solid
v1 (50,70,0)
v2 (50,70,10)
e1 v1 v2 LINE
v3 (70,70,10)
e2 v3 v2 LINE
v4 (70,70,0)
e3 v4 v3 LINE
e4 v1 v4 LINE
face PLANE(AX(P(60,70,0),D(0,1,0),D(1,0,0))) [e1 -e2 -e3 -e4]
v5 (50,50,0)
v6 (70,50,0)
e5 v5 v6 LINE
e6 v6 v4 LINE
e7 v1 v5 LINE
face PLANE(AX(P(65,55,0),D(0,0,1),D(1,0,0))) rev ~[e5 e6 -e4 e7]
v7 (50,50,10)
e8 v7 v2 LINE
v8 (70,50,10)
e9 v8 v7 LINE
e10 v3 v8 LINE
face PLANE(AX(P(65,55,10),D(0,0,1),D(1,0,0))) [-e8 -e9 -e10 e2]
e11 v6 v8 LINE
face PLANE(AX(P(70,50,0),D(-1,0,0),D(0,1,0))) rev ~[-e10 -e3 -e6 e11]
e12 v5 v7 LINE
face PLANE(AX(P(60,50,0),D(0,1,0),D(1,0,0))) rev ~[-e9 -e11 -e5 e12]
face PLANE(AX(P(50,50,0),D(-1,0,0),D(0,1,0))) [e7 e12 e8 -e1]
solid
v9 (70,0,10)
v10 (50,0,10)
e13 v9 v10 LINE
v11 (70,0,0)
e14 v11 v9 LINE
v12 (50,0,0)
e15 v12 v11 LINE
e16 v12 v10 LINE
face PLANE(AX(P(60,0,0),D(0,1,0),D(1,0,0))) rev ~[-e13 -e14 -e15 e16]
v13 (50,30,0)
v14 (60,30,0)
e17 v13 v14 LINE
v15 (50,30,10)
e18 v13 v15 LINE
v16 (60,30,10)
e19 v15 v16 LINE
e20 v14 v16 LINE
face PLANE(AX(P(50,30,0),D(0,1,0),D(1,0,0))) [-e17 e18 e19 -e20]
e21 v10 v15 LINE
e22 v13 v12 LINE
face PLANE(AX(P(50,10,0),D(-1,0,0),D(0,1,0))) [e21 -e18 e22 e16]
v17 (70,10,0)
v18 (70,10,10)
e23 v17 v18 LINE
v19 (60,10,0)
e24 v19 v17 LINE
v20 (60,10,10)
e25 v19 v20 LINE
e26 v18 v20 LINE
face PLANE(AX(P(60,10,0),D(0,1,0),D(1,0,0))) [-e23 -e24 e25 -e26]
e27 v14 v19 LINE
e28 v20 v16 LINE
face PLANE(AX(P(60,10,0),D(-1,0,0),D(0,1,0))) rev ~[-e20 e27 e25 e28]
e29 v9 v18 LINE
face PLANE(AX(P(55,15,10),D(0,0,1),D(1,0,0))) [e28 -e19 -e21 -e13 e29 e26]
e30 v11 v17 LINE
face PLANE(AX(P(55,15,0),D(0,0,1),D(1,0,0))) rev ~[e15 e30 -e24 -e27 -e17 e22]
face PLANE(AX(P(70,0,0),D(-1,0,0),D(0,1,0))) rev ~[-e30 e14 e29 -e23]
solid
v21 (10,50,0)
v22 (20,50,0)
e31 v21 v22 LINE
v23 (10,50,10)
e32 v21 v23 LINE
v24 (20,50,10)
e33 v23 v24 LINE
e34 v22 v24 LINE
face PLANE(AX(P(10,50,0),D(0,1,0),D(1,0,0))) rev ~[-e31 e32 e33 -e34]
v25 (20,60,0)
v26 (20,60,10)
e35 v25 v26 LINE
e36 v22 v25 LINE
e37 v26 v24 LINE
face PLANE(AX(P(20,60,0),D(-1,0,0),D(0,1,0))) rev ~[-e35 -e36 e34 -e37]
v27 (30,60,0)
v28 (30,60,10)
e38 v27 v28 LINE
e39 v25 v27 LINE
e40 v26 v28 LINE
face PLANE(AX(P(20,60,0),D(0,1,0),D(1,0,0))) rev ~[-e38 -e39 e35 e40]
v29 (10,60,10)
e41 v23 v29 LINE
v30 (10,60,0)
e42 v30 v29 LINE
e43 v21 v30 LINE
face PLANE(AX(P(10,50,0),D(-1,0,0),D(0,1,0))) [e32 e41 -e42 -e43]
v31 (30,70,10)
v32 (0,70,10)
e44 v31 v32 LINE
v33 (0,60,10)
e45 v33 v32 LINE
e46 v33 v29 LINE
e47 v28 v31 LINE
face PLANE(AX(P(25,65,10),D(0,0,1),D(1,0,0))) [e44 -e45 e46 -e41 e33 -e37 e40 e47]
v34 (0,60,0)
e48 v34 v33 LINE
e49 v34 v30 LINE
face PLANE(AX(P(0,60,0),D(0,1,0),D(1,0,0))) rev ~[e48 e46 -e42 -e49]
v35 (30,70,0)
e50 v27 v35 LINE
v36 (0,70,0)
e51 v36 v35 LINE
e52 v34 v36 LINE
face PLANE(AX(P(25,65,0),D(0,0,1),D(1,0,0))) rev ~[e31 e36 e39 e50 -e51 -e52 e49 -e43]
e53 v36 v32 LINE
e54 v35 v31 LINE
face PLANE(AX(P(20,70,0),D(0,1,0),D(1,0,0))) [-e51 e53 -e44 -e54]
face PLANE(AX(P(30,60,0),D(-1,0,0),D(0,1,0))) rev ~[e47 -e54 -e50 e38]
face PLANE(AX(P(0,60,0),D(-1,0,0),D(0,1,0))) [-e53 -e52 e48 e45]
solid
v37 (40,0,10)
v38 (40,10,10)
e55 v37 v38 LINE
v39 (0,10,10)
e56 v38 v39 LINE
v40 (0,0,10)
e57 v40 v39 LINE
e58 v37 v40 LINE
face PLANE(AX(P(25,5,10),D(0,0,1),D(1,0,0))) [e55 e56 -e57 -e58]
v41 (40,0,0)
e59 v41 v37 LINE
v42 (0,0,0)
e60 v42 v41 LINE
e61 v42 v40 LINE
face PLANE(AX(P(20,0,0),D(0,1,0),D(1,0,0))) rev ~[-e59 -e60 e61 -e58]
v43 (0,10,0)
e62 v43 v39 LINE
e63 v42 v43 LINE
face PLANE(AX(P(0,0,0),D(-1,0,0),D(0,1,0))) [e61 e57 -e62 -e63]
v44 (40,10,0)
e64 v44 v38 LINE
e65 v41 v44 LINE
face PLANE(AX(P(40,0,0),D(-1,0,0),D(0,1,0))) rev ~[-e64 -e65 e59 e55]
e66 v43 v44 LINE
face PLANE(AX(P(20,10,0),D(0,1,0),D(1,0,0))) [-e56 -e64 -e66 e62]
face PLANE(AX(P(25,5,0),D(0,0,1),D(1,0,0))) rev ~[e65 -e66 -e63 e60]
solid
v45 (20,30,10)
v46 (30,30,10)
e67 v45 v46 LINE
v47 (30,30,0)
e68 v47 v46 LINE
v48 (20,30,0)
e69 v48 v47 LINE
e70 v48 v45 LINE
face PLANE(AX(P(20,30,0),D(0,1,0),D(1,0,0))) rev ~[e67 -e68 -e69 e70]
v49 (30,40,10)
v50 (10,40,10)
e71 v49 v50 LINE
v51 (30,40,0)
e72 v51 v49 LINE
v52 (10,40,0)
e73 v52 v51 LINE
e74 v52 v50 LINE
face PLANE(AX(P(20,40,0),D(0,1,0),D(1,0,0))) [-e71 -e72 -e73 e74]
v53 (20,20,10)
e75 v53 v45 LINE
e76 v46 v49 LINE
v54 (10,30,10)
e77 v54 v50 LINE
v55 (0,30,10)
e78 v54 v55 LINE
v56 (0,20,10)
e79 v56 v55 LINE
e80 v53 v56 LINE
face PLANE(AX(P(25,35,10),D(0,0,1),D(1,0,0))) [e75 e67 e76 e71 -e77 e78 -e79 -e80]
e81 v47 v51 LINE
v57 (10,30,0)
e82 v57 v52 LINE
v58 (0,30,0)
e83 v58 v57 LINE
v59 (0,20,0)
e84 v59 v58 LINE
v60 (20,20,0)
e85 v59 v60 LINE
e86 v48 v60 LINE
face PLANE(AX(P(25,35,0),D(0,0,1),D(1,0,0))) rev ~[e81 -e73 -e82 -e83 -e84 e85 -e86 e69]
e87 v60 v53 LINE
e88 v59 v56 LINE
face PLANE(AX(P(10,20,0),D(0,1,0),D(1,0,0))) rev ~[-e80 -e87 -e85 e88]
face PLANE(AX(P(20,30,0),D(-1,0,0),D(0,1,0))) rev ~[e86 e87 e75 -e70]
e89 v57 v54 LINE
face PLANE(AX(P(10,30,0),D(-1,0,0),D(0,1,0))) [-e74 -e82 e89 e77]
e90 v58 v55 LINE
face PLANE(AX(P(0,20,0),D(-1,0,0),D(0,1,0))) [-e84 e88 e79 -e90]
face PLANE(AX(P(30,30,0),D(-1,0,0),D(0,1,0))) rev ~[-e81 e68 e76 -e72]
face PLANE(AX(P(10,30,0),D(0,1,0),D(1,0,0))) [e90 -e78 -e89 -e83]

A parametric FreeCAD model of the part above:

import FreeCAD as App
import Part
import Sketcher

V = App.Vector
Q = App.Units.Quantity

doc = App.newDocument("Part")
params = doc.addObject("Spreadsheet::Sheet", "Params")
for row, (alias, value) in enumerate([
    ("sketch1_width", "10 mm"),
    ("pad1_length", "10 mm"),
    ("sketch2_width", "10 mm"),
    ("pad2_length", "10 mm"),
    ("sketch3_width", "10 mm"),
    ("pad3_length", "10 mm"),
    ("sketch4_width", "10 mm"),
    ("pad4_length", "10 mm"),
    ("sketch5_width", "10 mm"),
    ("pad5_length", "10 mm"),
    ("sketch6_width", "10 mm"),
    ("pad6_length", "10 mm"),
    ("sketch7_width", "10 mm"),
    ("pad7_length", "10 mm"),
    ("sketch8_width", "10 mm"),
    ("pad8_length", "10 mm"),
    ("sketch9_width", "10 mm"),
    ("pad9_length", "10 mm"),
    ("sketch10_width", "10 mm"),
    ("pad10_length", "10 mm"),
    ("sketch11_width", "10 mm"),
    ("pad11_length", "10 mm"),
    ("sketch12_width", "10 mm"),
    ("pad12_length", "10 mm"),
    ("sketch13_width", "10 mm"),
    ("pad13_length", "10 mm"),
    ("sketch14_width", "10 mm"),
    ("pad14_length", "10 mm"),
    ("sketch15_width", "10 mm"),
    ("pad15_length", "10 mm"),
    ("sketch16_width", "10 mm"),
    ("pad16_length", "10 mm"),
    ("sketch17_width", "10 mm"),
    ("pad17_length", "10 mm"),
    ("sketch18_width", "10 mm"),
    ("pad18_length", "10 mm"),
    ("sketch19_width", "10 mm"),
    ("pad19_length", "10 mm"),
    ("sketch20_width", "10 mm"),
    ("pad20_length", "10 mm"),
], start=1):
    params.set(f"A{row}", alias)
    params.set(f"B{row}", "=" + value)
    params.setAlias(f"B{row}", alias)

body = doc.addObject("PartDesign::Body", "Body")

sketch1 = body.newObject("Sketcher::SketchObject", "Sketch")
sketch1.AttachmentSupport = (doc.getObject("XY_Plane"), [""])
sketch1.MapMode = "FlatFace"
sketch1.addGeometry([
    Part.LineSegment(V(0, 10, 0), V(0, 0, 0)),
    Part.LineSegment(V(0, 0, 0), V(10, 0, 0)),
    Part.LineSegment(V(10, 0, 0), V(10, 10, 0)),
    Part.LineSegment(V(10, 10, 0), V(0, 10, 0)),
], False)
sketch1.addConstraint([
    Sketcher.Constraint("Coincident", 0, 2, 1, 1),
    Sketcher.Constraint("Coincident", 1, 2, 2, 1),
    Sketcher.Constraint("Coincident", 2, 2, 3, 1),
    Sketcher.Constraint("Coincident", 3, 2, 0, 1),
    Sketcher.Constraint("Vertical", 0),
    Sketcher.Constraint("Horizontal", 1),
    Sketcher.Constraint("Vertical", 2),
    Sketcher.Constraint("Horizontal", 3),
    Sketcher.Constraint("Coincident", 0, 2, -1, 1),
    Sketcher.Constraint("Equal", 3, 0),
    Sketcher.Constraint("DistanceX", 1, 1, 1, 2, Q("10 mm")),
])
sketch1.setExpression("Constraints[10]", "Params.sketch1_width")
pad1 = body.newObject("PartDesign::Pad", "Pad")
pad1.Profile = sketch1
pad1.setExpression("Length", "Params.pad1_length")
body2 = doc.addObject("PartDesign::Body", "Body001")

sketch2 = body2.newObject("Sketcher::SketchObject", "Sketch001")
sketch2.AttachmentSupport = (doc.getObject("XY_Plane001"), [""])
sketch2.MapMode = "FlatFace"
sketch2.addGeometry([
    Part.LineSegment(V(10, 10, 0), V(10, 0, 0)),
    Part.LineSegment(V(10, 0, 0), V(20, 0, 0)),
    Part.LineSegment(V(20, 0, 0), V(20, 10, 0)),
    Part.LineSegment(V(20, 10, 0), V(10, 10, 0)),
], False)
sketch2.addConstraint([
    Sketcher.Constraint("Coincident", 0, 2, 1, 1),
    Sketcher.Constraint("Coincident", 1, 2, 2, 1),
    Sketcher.Constraint("Coincident", 2, 2, 3, 1),
    Sketcher.Constraint("Coincident", 3, 2, 0, 1),
    Sketcher.Constraint("Vertical", 0),
    Sketcher.Constraint("Horizontal", 1),
    Sketcher.Constraint("Vertical", 2),
    Sketcher.Constraint("Horizontal", 3),
    Sketcher.Constraint("PointOnObject", 0, 2, -1),
    Sketcher.Constraint("Equal", 3, 0),
    Sketcher.Constraint("DistanceX", 1, 1, 1, 2, Q("10 mm")),
    Sketcher.Constraint("DistanceX", -1, 1, 0, 2, Q("10 mm")),
])
sketch2.setExpression("Constraints[10]", "Params.sketch2_width")
pad2 = body2.newObject("PartDesign::Pad", "Pad001")
pad2.Profile = sketch2
pad2.setExpression("Length", "Params.pad2_length")
body3 = doc.addObject("PartDesign::Body", "Body002")

sketch3 = body3.newObject("Sketcher::SketchObject", "Sketch002")
sketch3.AttachmentSupport = (doc.getObject("XY_Plane002"), [""])
sketch3.MapMode = "FlatFace"
sketch3.addGeometry([
    Part.LineSegment(V(20, 10, 0), V(20, 0, 0)),
    Part.LineSegment(V(20, 0, 0), V(30, 0, 0)),
    Part.LineSegment(V(30, 0, 0), V(30, 10, 0)),
    Part.LineSegment(V(30, 10, 0), V(20, 10, 0)),
], False)
sketch3.addConstraint([
    Sketcher.Constraint("Coincident", 0, 2, 1, 1),
    Sketcher.Constraint("Coincident", 1, 2, 2, 1),
    Sketcher.Constraint("Coincident", 2, 2, 3, 1),
    Sketcher.Constraint("Coincident", 3, 2, 0, 1),
    Sketcher.Constraint("Vertical", 0),
    Sketcher.Constraint("Horizontal", 1),
    Sketcher.Constraint("Vertical", 2),
    Sketcher.Constraint("Horizontal", 3),
    Sketcher.Constraint("PointOnObject", 0, 2, -1),
    Sketcher.Constraint("Equal", 3, 0),
    Sketcher.Constraint("DistanceX", 1, 1, 1, 2, Q("10 mm")),
    Sketcher.Constraint("DistanceX", -1, 1, 0, 2, Q("20 mm")),
])
sketch3.setExpression("Constraints[10]", "Params.sketch3_width")
pad3 = body3.newObject("PartDesign::Pad", "Pad002")
pad3.Profile = sketch3
pad3.setExpression("Length", "Params.pad3_length")
body4 = doc.addObject("PartDesign::Body", "Body003")
body4.AllowCompound = True

sketch4 = body4.newObject("Sketcher::SketchObject", "Sketch003")
sketch4.AttachmentSupport = (doc.getObject("XY_Plane003"), [""])
sketch4.MapMode = "FlatFace"
sketch4.addGeometry([
    Part.LineSegment(V(30, 10, 0), V(30, 0, 0)),
    Part.LineSegment(V(30, 0, 0), V(40, 0, 0)),
    Part.LineSegment(V(40, 0, 0), V(40, 10, 0)),
    Part.LineSegment(V(40, 10, 0), V(30, 10, 0)),
], False)
sketch4.addConstraint([
    Sketcher.Constraint("Coincident", 0, 2, 1, 1),
    Sketcher.Constraint("Coincident", 1, 2, 2, 1),
    Sketcher.Constraint("Coincident", 2, 2, 3, 1),
    Sketcher.Constraint("Coincident", 3, 2, 0, 1),
    Sketcher.Constraint("Vertical", 0),
    Sketcher.Constraint("Horizontal", 1),
    Sketcher.Constraint("Vertical", 2),
    Sketcher.Constraint("Horizontal", 3),
    Sketcher.Constraint("PointOnObject", 0, 2, -1),
    Sketcher.Constraint("Equal", 3, 0),
    Sketcher.Constraint("DistanceX", 1, 1, 1, 2, Q("10 mm")),
    Sketcher.Constraint("DistanceX", -1, 1, 0, 2, Q("30 mm")),
])
sketch4.setExpression("Constraints[10]", "Params.sketch4_width")
pad4 = body4.newObject("PartDesign::Pad", "Pad003")
pad4.Profile = sketch4
pad4.setExpression("Length", "Params.pad4_length")
doc.recompute()

boolean = body4.newObject("PartDesign::Boolean", "Boolean")
boolean.Type = "Fuse"
boolean.addObjects([body])
doc.recompute()

boolean2 = body4.newObject("PartDesign::Boolean", "Boolean001")
boolean2.Type = "Fuse"
boolean2.addObjects([body2])
doc.recompute()

boolean3 = body4.newObject("PartDesign::Boolean", "Boolean002")
boolean3.Type = "Fuse"
boolean3.addObjects([body3])
body5 = doc.addObject("PartDesign::Body", "Body004")

sketch5 = body5.newObject("Sketcher::SketchObject", "Sketch004")
sketch5.AttachmentSupport = (doc.getObject("XY_Plane004"), [""])
sketch5.MapMode = "FlatFace"
sketch5.addGeometry([
    Part.LineSegment(V(50, 10, 0), V(50, 0, 0)),
    Part.LineSegment(V(50, 0, 0), V(60, 0, 0)),
    Part.LineSegment(V(60, 0, 0), V(60, 10, 0)),
    Part.LineSegment(V(60, 10, 0), V(50, 10, 0)),
], False)
sketch5.addConstraint([
    Sketcher.Constraint("Coincident", 0, 2, 1, 1),
    Sketcher.Constraint("Coincident", 1, 2, 2, 1),
    Sketcher.Constraint("Coincident", 2, 2, 3, 1),
    Sketcher.Constraint("Coincident", 3, 2, 0, 1),
    Sketcher.Constraint("Vertical", 0),
    Sketcher.Constraint("Horizontal", 1),
    Sketcher.Constraint("Vertical", 2),
    Sketcher.Constraint("Horizontal", 3),
    Sketcher.Constraint("PointOnObject", 0, 2, -1),
    Sketcher.Constraint("Equal", 3, 0),
    Sketcher.Constraint("DistanceX", 1, 1, 1, 2, Q("10 mm")),
    Sketcher.Constraint("DistanceX", -1, 1, 0, 2, Q("50 mm")),
])
sketch5.setExpression("Constraints[10]", "Params.sketch5_width")
pad5 = body5.newObject("PartDesign::Pad", "Pad004")
pad5.Profile = sketch5
pad5.setExpression("Length", "Params.pad5_length")
body6 = doc.addObject("PartDesign::Body", "Body005")

sketch6 = body6.newObject("Sketcher::SketchObject", "Sketch005")
sketch6.AttachmentSupport = (doc.getObject("XY_Plane005"), [""])
sketch6.MapMode = "FlatFace"
sketch6.addGeometry([
    Part.LineSegment(V(60, 10, 0), V(60, 0, 0)),
    Part.LineSegment(V(60, 0, 0), V(70, 0, 0)),
    Part.LineSegment(V(70, 0, 0), V(70, 10, 0)),
    Part.LineSegment(V(70, 10, 0), V(60, 10, 0)),
], False)
sketch6.addConstraint([
    Sketcher.Constraint("Coincident", 0, 2, 1, 1),
    Sketcher.Constraint("Coincident", 1, 2, 2, 1),
    Sketcher.Constraint("Coincident", 2, 2, 3, 1),
    Sketcher.Constraint("Coincident", 3, 2, 0, 1),
    Sketcher.Constraint("Vertical", 0),
    Sketcher.Constraint("Horizontal", 1),
    Sketcher.Constraint("Vertical", 2),
    Sketcher.Constraint("Horizontal", 3),
    Sketcher.Constraint("PointOnObject", 0, 2, -1),
    Sketcher.Constraint("Equal", 3, 0),
    Sketcher.Constraint("DistanceX", 1, 1, 1, 2, Q("10 mm")),
    Sketcher.Constraint("DistanceX", -1, 1, 0, 2, Q("60 mm")),
])
sketch6.setExpression("Constraints[10]", "Params.sketch6_width")
pad6 = body6.newObject("PartDesign::Pad", "Pad005")
pad6.Profile = sketch6
pad6.setExpression("Length", "Params.pad6_length")
body7 = doc.addObject("PartDesign::Body", "Body006")

sketch7 = body7.newObject("Sketcher::SketchObject", "Sketch006")
sketch7.AttachmentSupport = (doc.getObject("XY_Plane006"), [""])
sketch7.MapMode = "FlatFace"
sketch7.addGeometry([
    Part.LineSegment(V(50, 20, 0), V(50, 10, 0)),
    Part.LineSegment(V(50, 10, 0), V(60, 10, 0)),
    Part.LineSegment(V(60, 10, 0), V(60, 20, 0)),
    Part.LineSegment(V(60, 20, 0), V(50, 20, 0)),
], False)
sketch7.addConstraint([
    Sketcher.Constraint("Coincident", 0, 2, 1, 1),
    Sketcher.Constraint("Coincident", 1, 2, 2, 1),
    Sketcher.Constraint("Coincident", 2, 2, 3, 1),
    Sketcher.Constraint("Coincident", 3, 2, 0, 1),
    Sketcher.Constraint("Vertical", 0),
    Sketcher.Constraint("Horizontal", 1),
    Sketcher.Constraint("Vertical", 2),
    Sketcher.Constraint("Horizontal", 3),
    Sketcher.Constraint("Equal", 3, 0),
    Sketcher.Constraint("DistanceX", 1, 1, 1, 2, Q("10 mm")),
    Sketcher.Constraint("DistanceX", -1, 1, 0, 2, Q("50 mm")),
    Sketcher.Constraint("DistanceY", -1, 1, 0, 2, Q("10 mm")),
])
sketch7.setExpression("Constraints[9]", "Params.sketch7_width")
pad7 = body7.newObject("PartDesign::Pad", "Pad006")
pad7.Profile = sketch7
pad7.setExpression("Length", "Params.pad7_length")
body8 = doc.addObject("PartDesign::Body", "Body007")
body8.AllowCompound = True

sketch8 = body8.newObject("Sketcher::SketchObject", "Sketch007")
sketch8.AttachmentSupport = (doc.getObject("XY_Plane007"), [""])
sketch8.MapMode = "FlatFace"
sketch8.addGeometry([
    Part.LineSegment(V(50, 30, 0), V(50, 20, 0)),
    Part.LineSegment(V(50, 20, 0), V(60, 20, 0)),
    Part.LineSegment(V(60, 20, 0), V(60, 30, 0)),
    Part.LineSegment(V(60, 30, 0), V(50, 30, 0)),
], False)
sketch8.addConstraint([
    Sketcher.Constraint("Coincident", 0, 2, 1, 1),
    Sketcher.Constraint("Coincident", 1, 2, 2, 1),
    Sketcher.Constraint("Coincident", 2, 2, 3, 1),
    Sketcher.Constraint("Coincident", 3, 2, 0, 1),
    Sketcher.Constraint("Vertical", 0),
    Sketcher.Constraint("Horizontal", 1),
    Sketcher.Constraint("Vertical", 2),
    Sketcher.Constraint("Horizontal", 3),
    Sketcher.Constraint("Equal", 3, 0),
    Sketcher.Constraint("DistanceX", 1, 1, 1, 2, Q("10 mm")),
    Sketcher.Constraint("DistanceX", -1, 1, 0, 2, Q("50 mm")),
    Sketcher.Constraint("DistanceY", -1, 1, 0, 2, Q("20 mm")),
])
sketch8.setExpression("Constraints[9]", "Params.sketch8_width")
pad8 = body8.newObject("PartDesign::Pad", "Pad007")
pad8.Profile = sketch8
pad8.setExpression("Length", "Params.pad8_length")
doc.recompute()

boolean4 = body8.newObject("PartDesign::Boolean", "Boolean003")
boolean4.Type = "Fuse"
boolean4.addObjects([body5])
doc.recompute()

boolean5 = body8.newObject("PartDesign::Boolean", "Boolean004")
boolean5.Type = "Fuse"
boolean5.addObjects([body6])
doc.recompute()

boolean6 = body8.newObject("PartDesign::Boolean", "Boolean005")
boolean6.Type = "Fuse"
boolean6.addObjects([body7])
body9 = doc.addObject("PartDesign::Body", "Body008")

sketch9 = body9.newObject("Sketcher::SketchObject", "Sketch008")
sketch9.AttachmentSupport = (doc.getObject("XY_Plane008"), [""])
sketch9.MapMode = "FlatFace"
sketch9.addGeometry([
    Part.LineSegment(V(10, 30, 0), V(10, 20, 0)),
    Part.LineSegment(V(10, 20, 0), V(20, 20, 0)),
    Part.LineSegment(V(20, 20, 0), V(20, 30, 0)),
    Part.LineSegment(V(20, 30, 0), V(10, 30, 0)),
], False)
sketch9.addConstraint([
    Sketcher.Constraint("Coincident", 0, 2, 1, 1),
    Sketcher.Constraint("Coincident", 1, 2, 2, 1),
    Sketcher.Constraint("Coincident", 2, 2, 3, 1),
    Sketcher.Constraint("Coincident", 3, 2, 0, 1),
    Sketcher.Constraint("Vertical", 0),
    Sketcher.Constraint("Horizontal", 1),
    Sketcher.Constraint("Vertical", 2),
    Sketcher.Constraint("Horizontal", 3),
    Sketcher.Constraint("Equal", 3, 0),
    Sketcher.Constraint("DistanceX", 1, 1, 1, 2, Q("10 mm")),
    Sketcher.Constraint("DistanceX", -1, 1, 0, 2, Q("10 mm")),
    Sketcher.Constraint("DistanceY", -1, 1, 0, 2, Q("20 mm")),
])
sketch9.setExpression("Constraints[9]", "Params.sketch9_width")
pad9 = body9.newObject("PartDesign::Pad", "Pad008")
pad9.Profile = sketch9
pad9.setExpression("Length", "Params.pad9_length")
body10 = doc.addObject("PartDesign::Body", "Body009")

sketch10 = body10.newObject("Sketcher::SketchObject", "Sketch009")
sketch10.AttachmentSupport = (doc.getObject("XY_Plane009"), [""])
sketch10.MapMode = "FlatFace"
sketch10.addGeometry([
    Part.LineSegment(V(10, 40, 0), V(10, 30, 0)),
    Part.LineSegment(V(10, 30, 0), V(20, 30, 0)),
    Part.LineSegment(V(20, 30, 0), V(20, 40, 0)),
    Part.LineSegment(V(20, 40, 0), V(10, 40, 0)),
], False)
sketch10.addConstraint([
    Sketcher.Constraint("Coincident", 0, 2, 1, 1),
    Sketcher.Constraint("Coincident", 1, 2, 2, 1),
    Sketcher.Constraint("Coincident", 2, 2, 3, 1),
    Sketcher.Constraint("Coincident", 3, 2, 0, 1),
    Sketcher.Constraint("Vertical", 0),
    Sketcher.Constraint("Horizontal", 1),
    Sketcher.Constraint("Vertical", 2),
    Sketcher.Constraint("Horizontal", 3),
    Sketcher.Constraint("Equal", 3, 0),
    Sketcher.Constraint("DistanceX", 1, 1, 1, 2, Q("10 mm")),
    Sketcher.Constraint("DistanceX", -1, 1, 0, 2, Q("10 mm")),
    Sketcher.Constraint("DistanceY", -1, 1, 0, 2, Q("30 mm")),
])
sketch10.setExpression("Constraints[9]", "Params.sketch10_width")
pad10 = body10.newObject("PartDesign::Pad", "Pad009")
pad10.Profile = sketch10
pad10.setExpression("Length", "Params.pad10_length")
body11 = doc.addObject("PartDesign::Body", "Body010")

sketch11 = body11.newObject("Sketcher::SketchObject", "Sketch010")
sketch11.AttachmentSupport = (doc.getObject("XY_Plane010"), [""])
sketch11.MapMode = "FlatFace"
sketch11.addGeometry([
    Part.LineSegment(V(20, 40, 0), V(20, 30, 0)),
    Part.LineSegment(V(20, 30, 0), V(30, 30, 0)),
    Part.LineSegment(V(30, 30, 0), V(30, 40, 0)),
    Part.LineSegment(V(30, 40, 0), V(20, 40, 0)),
], False)
sketch11.addConstraint([
    Sketcher.Constraint("Coincident", 0, 2, 1, 1),
    Sketcher.Constraint("Coincident", 1, 2, 2, 1),
    Sketcher.Constraint("Coincident", 2, 2, 3, 1),
    Sketcher.Constraint("Coincident", 3, 2, 0, 1),
    Sketcher.Constraint("Vertical", 0),
    Sketcher.Constraint("Horizontal", 1),
    Sketcher.Constraint("Vertical", 2),
    Sketcher.Constraint("Horizontal", 3),
    Sketcher.Constraint("Equal", 3, 0),
    Sketcher.Constraint("DistanceX", 1, 1, 1, 2, Q("10 mm")),
    Sketcher.Constraint("DistanceX", -1, 1, 0, 2, Q("20 mm")),
    Sketcher.Constraint("DistanceY", -1, 1, 0, 2, Q("30 mm")),
])
sketch11.setExpression("Constraints[9]", "Params.sketch11_width")
pad11 = body11.newObject("PartDesign::Pad", "Pad010")
pad11.Profile = sketch11
pad11.setExpression("Length", "Params.pad11_length")
body12 = doc.addObject("PartDesign::Body", "Body011")

sketch12 = body12.newObject("Sketcher::SketchObject", "Sketch011")
sketch12.AttachmentSupport = (doc.getObject("XY_Plane011"), [""])
sketch12.MapMode = "FlatFace"
sketch12.addGeometry([
    Part.LineSegment(V(0, 30, 0), V(0, 20, 0)),
    Part.LineSegment(V(0, 20, 0), V(10, 20, 0)),
    Part.LineSegment(V(10, 20, 0), V(10, 30, 0)),
    Part.LineSegment(V(10, 30, 0), V(0, 30, 0)),
], False)
sketch12.addConstraint([
    Sketcher.Constraint("Coincident", 0, 2, 1, 1),
    Sketcher.Constraint("Coincident", 1, 2, 2, 1),
    Sketcher.Constraint("Coincident", 2, 2, 3, 1),
    Sketcher.Constraint("Coincident", 3, 2, 0, 1),
    Sketcher.Constraint("Vertical", 0),
    Sketcher.Constraint("Horizontal", 1),
    Sketcher.Constraint("Vertical", 2),
    Sketcher.Constraint("Horizontal", 3),
    Sketcher.Constraint("PointOnObject", 0, 2, -2),
    Sketcher.Constraint("Equal", 3, 0),
    Sketcher.Constraint("DistanceX", 1, 1, 1, 2, Q("10 mm")),
    Sketcher.Constraint("DistanceY", -1, 1, 0, 2, Q("20 mm")),
])
sketch12.setExpression("Constraints[10]", "Params.sketch12_width")
pad12 = body12.newObject("PartDesign::Pad", "Pad011")
pad12.Profile = sketch12
pad12.setExpression("Length", "Params.pad12_length")
doc.recompute()

boolean7 = body12.newObject("PartDesign::Boolean", "Boolean006")
boolean7.Type = "Fuse"
boolean7.addObjects([body9])
doc.recompute()

boolean8 = body12.newObject("PartDesign::Boolean", "Boolean007")
boolean8.Type = "Fuse"
boolean8.addObjects([body10])
doc.recompute()

boolean9 = body12.newObject("PartDesign::Boolean", "Boolean008")
boolean9.Type = "Fuse"
boolean9.addObjects([body11])
body13 = doc.addObject("PartDesign::Body", "Body012")

sketch13 = body13.newObject("Sketcher::SketchObject", "Sketch012")
sketch13.AttachmentSupport = (doc.getObject("XY_Plane012"), [""])
sketch13.MapMode = "FlatFace"
sketch13.addGeometry([
    Part.LineSegment(V(0, 70, 0), V(0, 60, 0)),
    Part.LineSegment(V(0, 60, 0), V(10, 60, 0)),
    Part.LineSegment(V(10, 60, 0), V(10, 70, 0)),
    Part.LineSegment(V(10, 70, 0), V(0, 70, 0)),
], False)
sketch13.addConstraint([
    Sketcher.Constraint("Coincident", 0, 2, 1, 1),
    Sketcher.Constraint("Coincident", 1, 2, 2, 1),
    Sketcher.Constraint("Coincident", 2, 2, 3, 1),
    Sketcher.Constraint("Coincident", 3, 2, 0, 1),
    Sketcher.Constraint("Vertical", 0),
    Sketcher.Constraint("Horizontal", 1),
    Sketcher.Constraint("Vertical", 2),
    Sketcher.Constraint("Horizontal", 3),
    Sketcher.Constraint("PointOnObject", 0, 2, -2),
    Sketcher.Constraint("Equal", 3, 0),
    Sketcher.Constraint("DistanceX", 1, 1, 1, 2, Q("10 mm")),
    Sketcher.Constraint("DistanceY", -1, 1, 0, 2, Q("60 mm")),
])
sketch13.setExpression("Constraints[10]", "Params.sketch13_width")
pad13 = body13.newObject("PartDesign::Pad", "Pad012")
pad13.Profile = sketch13
pad13.setExpression("Length", "Params.pad13_length")
body14 = doc.addObject("PartDesign::Body", "Body013")

sketch14 = body14.newObject("Sketcher::SketchObject", "Sketch013")
sketch14.AttachmentSupport = (doc.getObject("XY_Plane013"), [""])
sketch14.MapMode = "FlatFace"
sketch14.addGeometry([
    Part.LineSegment(V(10, 70, 0), V(10, 60, 0)),
    Part.LineSegment(V(10, 60, 0), V(20, 60, 0)),
    Part.LineSegment(V(20, 60, 0), V(20, 70, 0)),
    Part.LineSegment(V(20, 70, 0), V(10, 70, 0)),
], False)
sketch14.addConstraint([
    Sketcher.Constraint("Coincident", 0, 2, 1, 1),
    Sketcher.Constraint("Coincident", 1, 2, 2, 1),
    Sketcher.Constraint("Coincident", 2, 2, 3, 1),
    Sketcher.Constraint("Coincident", 3, 2, 0, 1),
    Sketcher.Constraint("Vertical", 0),
    Sketcher.Constraint("Horizontal", 1),
    Sketcher.Constraint("Vertical", 2),
    Sketcher.Constraint("Horizontal", 3),
    Sketcher.Constraint("Equal", 3, 0),
    Sketcher.Constraint("DistanceX", 1, 1, 1, 2, Q("10 mm")),
    Sketcher.Constraint("DistanceX", -1, 1, 0, 2, Q("10 mm")),
    Sketcher.Constraint("DistanceY", -1, 1, 0, 2, Q("60 mm")),
])
sketch14.setExpression("Constraints[9]", "Params.sketch14_width")
pad14 = body14.newObject("PartDesign::Pad", "Pad013")
pad14.Profile = sketch14
pad14.setExpression("Length", "Params.pad14_length")
body15 = doc.addObject("PartDesign::Body", "Body014")

sketch15 = body15.newObject("Sketcher::SketchObject", "Sketch014")
sketch15.AttachmentSupport = (doc.getObject("XY_Plane014"), [""])
sketch15.MapMode = "FlatFace"
sketch15.addGeometry([
    Part.LineSegment(V(20, 70, 0), V(20, 60, 0)),
    Part.LineSegment(V(20, 60, 0), V(30, 60, 0)),
    Part.LineSegment(V(30, 60, 0), V(30, 70, 0)),
    Part.LineSegment(V(30, 70, 0), V(20, 70, 0)),
], False)
sketch15.addConstraint([
    Sketcher.Constraint("Coincident", 0, 2, 1, 1),
    Sketcher.Constraint("Coincident", 1, 2, 2, 1),
    Sketcher.Constraint("Coincident", 2, 2, 3, 1),
    Sketcher.Constraint("Coincident", 3, 2, 0, 1),
    Sketcher.Constraint("Vertical", 0),
    Sketcher.Constraint("Horizontal", 1),
    Sketcher.Constraint("Vertical", 2),
    Sketcher.Constraint("Horizontal", 3),
    Sketcher.Constraint("Equal", 3, 0),
    Sketcher.Constraint("DistanceX", 1, 1, 1, 2, Q("10 mm")),
    Sketcher.Constraint("DistanceX", -1, 1, 0, 2, Q("20 mm")),
    Sketcher.Constraint("DistanceY", -1, 1, 0, 2, Q("60 mm")),
])
sketch15.setExpression("Constraints[9]", "Params.sketch15_width")
pad15 = body15.newObject("PartDesign::Pad", "Pad014")
pad15.Profile = sketch15
pad15.setExpression("Length", "Params.pad15_length")
body16 = doc.addObject("PartDesign::Body", "Body015")
body16.AllowCompound = True

sketch16 = body16.newObject("Sketcher::SketchObject", "Sketch015")
sketch16.AttachmentSupport = (doc.getObject("XY_Plane015"), [""])
sketch16.MapMode = "FlatFace"
sketch16.addGeometry([
    Part.LineSegment(V(10, 60, 0), V(10, 50, 0)),
    Part.LineSegment(V(10, 50, 0), V(20, 50, 0)),
    Part.LineSegment(V(20, 50, 0), V(20, 60, 0)),
    Part.LineSegment(V(20, 60, 0), V(10, 60, 0)),
], False)
sketch16.addConstraint([
    Sketcher.Constraint("Coincident", 0, 2, 1, 1),
    Sketcher.Constraint("Coincident", 1, 2, 2, 1),
    Sketcher.Constraint("Coincident", 2, 2, 3, 1),
    Sketcher.Constraint("Coincident", 3, 2, 0, 1),
    Sketcher.Constraint("Vertical", 0),
    Sketcher.Constraint("Horizontal", 1),
    Sketcher.Constraint("Vertical", 2),
    Sketcher.Constraint("Horizontal", 3),
    Sketcher.Constraint("Equal", 3, 0),
    Sketcher.Constraint("DistanceX", 1, 1, 1, 2, Q("10 mm")),
    Sketcher.Constraint("DistanceX", -1, 1, 0, 2, Q("10 mm")),
    Sketcher.Constraint("DistanceY", -1, 1, 0, 2, Q("50 mm")),
])
sketch16.setExpression("Constraints[9]", "Params.sketch16_width")
pad16 = body16.newObject("PartDesign::Pad", "Pad015")
pad16.Profile = sketch16
pad16.setExpression("Length", "Params.pad16_length")
doc.recompute()

boolean10 = body16.newObject("PartDesign::Boolean", "Boolean009")
boolean10.Type = "Fuse"
boolean10.addObjects([body13])
doc.recompute()

boolean11 = body16.newObject("PartDesign::Boolean", "Boolean010")
boolean11.Type = "Fuse"
boolean11.addObjects([body14])
doc.recompute()

boolean12 = body16.newObject("PartDesign::Boolean", "Boolean011")
boolean12.Type = "Fuse"
boolean12.addObjects([body15])
body17 = doc.addObject("PartDesign::Body", "Body016")

sketch17 = body17.newObject("Sketcher::SketchObject", "Sketch016")
sketch17.AttachmentSupport = (doc.getObject("XY_Plane016"), [""])
sketch17.MapMode = "FlatFace"
sketch17.addGeometry([
    Part.LineSegment(V(50, 60, 0), V(50, 50, 0)),
    Part.LineSegment(V(50, 50, 0), V(60, 50, 0)),
    Part.LineSegment(V(60, 50, 0), V(60, 60, 0)),
    Part.LineSegment(V(60, 60, 0), V(50, 60, 0)),
], False)
sketch17.addConstraint([
    Sketcher.Constraint("Coincident", 0, 2, 1, 1),
    Sketcher.Constraint("Coincident", 1, 2, 2, 1),
    Sketcher.Constraint("Coincident", 2, 2, 3, 1),
    Sketcher.Constraint("Coincident", 3, 2, 0, 1),
    Sketcher.Constraint("Vertical", 0),
    Sketcher.Constraint("Horizontal", 1),
    Sketcher.Constraint("Vertical", 2),
    Sketcher.Constraint("Horizontal", 3),
    Sketcher.Constraint("Equal", 3, 0),
    Sketcher.Constraint("DistanceX", 1, 1, 1, 2, Q("10 mm")),
    Sketcher.Constraint("DistanceX", -1, 1, 0, 2, Q("50 mm")),
    Sketcher.Constraint("DistanceY", -1, 1, 0, 2, Q("50 mm")),
])
sketch17.setExpression("Constraints[9]", "Params.sketch17_width")
pad17 = body17.newObject("PartDesign::Pad", "Pad016")
pad17.Profile = sketch17
pad17.setExpression("Length", "Params.pad17_length")
body18 = doc.addObject("PartDesign::Body", "Body017")

sketch18 = body18.newObject("Sketcher::SketchObject", "Sketch017")
sketch18.AttachmentSupport = (doc.getObject("XY_Plane017"), [""])
sketch18.MapMode = "FlatFace"
sketch18.addGeometry([
    Part.LineSegment(V(60, 70, 0), V(60, 60, 0)),
    Part.LineSegment(V(60, 60, 0), V(70, 60, 0)),
    Part.LineSegment(V(70, 60, 0), V(70, 70, 0)),
    Part.LineSegment(V(70, 70, 0), V(60, 70, 0)),
], False)
sketch18.addConstraint([
    Sketcher.Constraint("Coincident", 0, 2, 1, 1),
    Sketcher.Constraint("Coincident", 1, 2, 2, 1),
    Sketcher.Constraint("Coincident", 2, 2, 3, 1),
    Sketcher.Constraint("Coincident", 3, 2, 0, 1),
    Sketcher.Constraint("Vertical", 0),
    Sketcher.Constraint("Horizontal", 1),
    Sketcher.Constraint("Vertical", 2),
    Sketcher.Constraint("Horizontal", 3),
    Sketcher.Constraint("Equal", 3, 0),
    Sketcher.Constraint("DistanceX", 1, 1, 1, 2, Q("10 mm")),
    Sketcher.Constraint("DistanceX", -1, 1, 0, 2, Q("60 mm")),
    Sketcher.Constraint("DistanceY", -1, 1, 0, 2, Q("60 mm")),
])
sketch18.setExpression("Constraints[9]", "Params.sketch18_width")
pad18 = body18.newObject("PartDesign::Pad", "Pad017")
pad18.Profile = sketch18
pad18.setExpression("Length", "Params.pad18_length")
body19 = doc.addObject("PartDesign::Body", "Body018")

sketch19 = body19.newObject("Sketcher::SketchObject", "Sketch018")
sketch19.AttachmentSupport = (doc.getObject("XY_Plane018"), [""])
sketch19.MapMode = "FlatFace"
sketch19.addGeometry([
    Part.LineSegment(V(60, 60, 0), V(60, 50, 0)),
    Part.LineSegment(V(60, 50, 0), V(70, 50, 0)),
    Part.LineSegment(V(70, 50, 0), V(70, 60, 0)),
    Part.LineSegment(V(70, 60, 0), V(60, 60, 0)),
], False)
sketch19.addConstraint([
    Sketcher.Constraint("Coincident", 0, 2, 1, 1),
    Sketcher.Constraint("Coincident", 1, 2, 2, 1),
    Sketcher.Constraint("Coincident", 2, 2, 3, 1),
    Sketcher.Constraint("Coincident", 3, 2, 0, 1),
    Sketcher.Constraint("Vertical", 0),
    Sketcher.Constraint("Horizontal", 1),
    Sketcher.Constraint("Vertical", 2),
    Sketcher.Constraint("Horizontal", 3),
    Sketcher.Constraint("Equal", 3, 0),
    Sketcher.Constraint("DistanceX", 1, 1, 1, 2, Q("10 mm")),
    Sketcher.Constraint("DistanceX", -1, 1, 0, 2, Q("60 mm")),
    Sketcher.Constraint("DistanceY", -1, 1, 0, 2, Q("50 mm")),
])
sketch19.setExpression("Constraints[9]", "Params.sketch19_width")
pad19 = body19.newObject("PartDesign::Pad", "Pad018")
pad19.Profile = sketch19
pad19.setExpression("Length", "Params.pad19_length")
body20 = doc.addObject("PartDesign::Body", "Body019")

sketch20 = body20.newObject("Sketcher::SketchObject", "Sketch019")
sketch20.AttachmentSupport = (doc.getObject("XY_Plane019"), [""])
sketch20.MapMode = "FlatFace"
sketch20.addGeometry([
    Part.LineSegment(V(50, 70, 0), V(50, 60, 0)),
    Part.LineSegment(V(50, 60, 0), V(60, 60, 0)),
    Part.LineSegment(V(60, 60, 0), V(60, 70, 0)),
    Part.LineSegment(V(60, 70, 0), V(50, 70, 0)),
], False)
sketch20.addConstraint([
    Sketcher.Constraint("Coincident", 0, 2, 1, 1),
    Sketcher.Constraint("Coincident", 1, 2, 2, 1),
    Sketcher.Constraint("Coincident", 2, 2, 3, 1),
    Sketcher.Constraint("Coincident", 3, 2, 0, 1),
    Sketcher.Constraint("Vertical", 0),
    Sketcher.Constraint("Horizontal", 1),
    Sketcher.Constraint("Vertical", 2),
    Sketcher.Constraint("Horizontal", 3),
    Sketcher.Constraint("Equal", 3, 0),
    Sketcher.Constraint("DistanceX", 1, 1, 1, 2, Q("10 mm")),
    Sketcher.Constraint("DistanceX", -1, 1, 0, 2, Q("50 mm")),
    Sketcher.Constraint("DistanceY", -1, 1, 0, 2, Q("60 mm")),
])
sketch20.setExpression("Constraints[9]", "Params.sketch20_width")
pad20 = body20.newObject("PartDesign::Pad", "Pad019")
pad20.Profile = sketch20
pad20.setExpression("Length", "Params.pad20_length")
doc.recompute()

boolean13 = body20.newObject("PartDesign::Boolean", "Boolean012")
boolean13.Type = "Fuse"
boolean13.addObjects([body17])
doc.recompute()

boolean14 = body20.newObject("PartDesign::Boolean", "Boolean013")
boolean14.Type = "Fuse"
boolean14.addObjects([body18])
doc.recompute()

boolean15 = body20.newObject("PartDesign::Boolean", "Boolean014")
boolean15.Type = "Fuse"
boolean15.addObjects([body19])

doc.recompute()
